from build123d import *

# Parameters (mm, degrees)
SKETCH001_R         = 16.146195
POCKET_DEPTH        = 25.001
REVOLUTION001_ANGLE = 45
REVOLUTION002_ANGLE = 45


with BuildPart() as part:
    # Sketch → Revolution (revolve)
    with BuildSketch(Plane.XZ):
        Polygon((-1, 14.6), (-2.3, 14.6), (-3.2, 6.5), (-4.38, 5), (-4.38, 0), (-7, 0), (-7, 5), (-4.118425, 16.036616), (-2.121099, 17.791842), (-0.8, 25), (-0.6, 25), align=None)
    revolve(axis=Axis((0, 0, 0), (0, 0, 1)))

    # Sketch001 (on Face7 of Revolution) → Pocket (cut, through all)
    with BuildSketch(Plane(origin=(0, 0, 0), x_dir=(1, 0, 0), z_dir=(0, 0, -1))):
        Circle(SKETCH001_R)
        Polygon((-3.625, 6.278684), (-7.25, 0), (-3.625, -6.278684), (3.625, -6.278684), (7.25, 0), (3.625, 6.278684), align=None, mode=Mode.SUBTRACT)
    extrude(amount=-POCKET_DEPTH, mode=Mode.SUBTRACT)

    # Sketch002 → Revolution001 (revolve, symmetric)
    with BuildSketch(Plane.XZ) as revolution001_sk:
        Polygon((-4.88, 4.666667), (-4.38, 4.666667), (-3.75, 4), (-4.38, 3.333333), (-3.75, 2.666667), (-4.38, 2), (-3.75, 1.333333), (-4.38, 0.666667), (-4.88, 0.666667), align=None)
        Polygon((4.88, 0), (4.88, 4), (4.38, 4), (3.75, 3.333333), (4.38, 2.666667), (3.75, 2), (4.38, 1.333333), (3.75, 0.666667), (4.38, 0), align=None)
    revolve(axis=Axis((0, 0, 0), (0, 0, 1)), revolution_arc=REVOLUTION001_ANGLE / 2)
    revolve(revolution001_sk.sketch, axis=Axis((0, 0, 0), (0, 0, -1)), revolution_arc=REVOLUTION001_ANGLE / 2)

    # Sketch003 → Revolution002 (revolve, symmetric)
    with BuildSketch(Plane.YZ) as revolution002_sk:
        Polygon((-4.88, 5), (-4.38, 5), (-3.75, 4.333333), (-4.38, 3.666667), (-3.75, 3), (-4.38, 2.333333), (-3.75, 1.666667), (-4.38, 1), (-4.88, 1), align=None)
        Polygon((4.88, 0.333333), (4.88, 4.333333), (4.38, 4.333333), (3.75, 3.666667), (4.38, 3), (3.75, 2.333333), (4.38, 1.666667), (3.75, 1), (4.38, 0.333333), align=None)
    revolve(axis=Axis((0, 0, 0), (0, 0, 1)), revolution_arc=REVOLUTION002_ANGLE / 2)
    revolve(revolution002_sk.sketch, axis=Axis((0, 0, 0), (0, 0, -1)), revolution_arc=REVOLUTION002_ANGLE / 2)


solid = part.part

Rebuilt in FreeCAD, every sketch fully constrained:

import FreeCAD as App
import Part
import Sketcher
from FreeCAD import Vector
Q = App.Units.Quantity


def add_polygon(sketch, points):
    """Adds a closed chain of lines whose ends are joined by coincident constraints."""
    first, n = sketch.GeometryCount, len(points)
    for a, b in zip(points, points[1:] + points[:1]):
        sketch.addGeometry(Part.LineSegment(App.Vector(*a, 0), App.Vector(*b, 0)), False)
    for i in range(n):
        sketch.addConstraint(Sketcher.Constraint("Coincident", first + i, 2, first + (i + 1) % n, 1))

doc = App.newDocument("Part")
params = doc.addObject("Spreadsheet::Sheet", "Params")
for row, (alias, value) in enumerate([
    ("sketch1_height", "5 mm"),
    ("sketch1_width", "1.3 mm"),
    ("sketch1_width2", "0.2 mm"),
    ("sketch1_width3", "2.62 mm"),
    ("revolution_angle", "360 deg"),
    ("sketch2_width", "7.25 mm"),
    ("sketch2_length", "7.25 mm"),
    ("sketch3_height", "4 mm"),
    ("sketch3_width", "0.5 mm"),
    ("revolution2_angle", "22.5 deg"),
    ("sketch4_height", "4 mm"),
    ("sketch4_width", "0.5 mm"),
    ("revolution3_angle", "22.5 deg"),
    ("sketch5_height", "4 mm"),
    ("sketch5_width", "0.5 mm"),
    ("revolution4_angle", "22.5 deg"),
    ("sketch6_height", "4 mm"),
    ("sketch6_width", "0.5 mm"),
    ("revolution5_angle", "22.5 deg"),
], start=1):
    params.set(f"A{row}", alias)
    params.set(f"B{row}", "=" + value)
    params.setAlias(f"B{row}", alias)

body = doc.addObject("PartDesign::Body", "Body")

sketch1 = body.newObject("Sketcher::SketchObject", "Sketch")
sketch1.AttachmentSupport = (doc.getObject("XZ_Plane"), [""])
sketch1.MapMode = "FlatFace"
add_polygon(sketch1, [(-2.3, 14.6), (-1, 14.6), (-0.6, 25), (-0.8, 25), (-2.121099, 17.791842), (-4.118425, 16.036616), (-7, 5), (-7, 0), (-4.38, 0), (-4.38, 5), (-3.2, 6.5)])
sketch1.addConstraint(Sketcher.Constraint("Horizontal", 0))
sketch1.addConstraint(Sketcher.Constraint("Horizontal", 2))
sketch1.addConstraint(Sketcher.Constraint("Vertical", 6))
sketch1.addConstraint(Sketcher.Constraint("Horizontal", 7))
sketch1.addConstraint(Sketcher.Constraint("Vertical", 8))
sketch1.addConstraint(Sketcher.Constraint("PointOnObject", 6, 2, -1))
sketch1.addConstraint(Sketcher.Constraint("Horizontal", 5, 2, 8, 2))
sketch1.addConstraint(Sketcher.Constraint("DistanceY", 6, 2, 6, 1, Q("5 mm")))
sketch1.addConstraint(Sketcher.Constraint("DistanceX", 0, 1, 0, 2, Q("1.3 mm")))
sketch1.addConstraint(Sketcher.Constraint("DistanceX", 2, 2, 2, 1, Q("0.2 mm")))
sketch1.addConstraint(Sketcher.Constraint("DistanceX", 0, 2, -1, 1, Q("1 mm")))
sketch1.addConstraint(Sketcher.Constraint("DistanceY", -1, 1, 1, 2, Q("25 mm")))
sketch1.addConstraint(Sketcher.Constraint("DistanceX", 5, 2, -1, 1, Q("7 mm")))
sketch1.addConstraint(Sketcher.Constraint("DistanceX", 7, 1, 7, 2, Q("2.62 mm")))
sketch1.addConstraint(Sketcher.Constraint("DistanceY", -1, 1, 0, 2, Q("14.6 mm")))
sketch1.addConstraint(Sketcher.Constraint("DistanceX", 1, 2, -1, 1, Q("0.6 mm")))
sketch1.addConstraint(Sketcher.Constraint("DistanceX", 9, 2, -1, 1, Q("3.2 mm")))
sketch1.addConstraint(Sketcher.Constraint("DistanceY", -1, 1, 9, 2, Q("6.5 mm")))
sketch1.addConstraint(Sketcher.Constraint("DistanceX", 3, 2, -1, 1, Q("2.121099 mm")))
sketch1.addConstraint(Sketcher.Constraint("Distance", 4, Q("2.658972 mm")))
sketch1.addConstraint(Sketcher.Constraint("DistanceY", -1, 1, 3, 2, Q("17.791842 mm")))
sketch1.addConstraint(Sketcher.Constraint("Distance", 5, Q("11.406593 mm")))
sketch1.setExpression("Constraints[18]", "Params.sketch1_height")
sketch1.setExpression("Constraints[19]", "Params.sketch1_width")
sketch1.setExpression("Constraints[20]", "Params.sketch1_width2")
sketch1.setExpression("Constraints[24]", "Params.sketch1_width3")
revolution = body.newObject("PartDesign::Revolution", "Revolution")
revolution.Profile = sketch1
revolution.ReferenceAxis = (sketch1, ["V_Axis"])
revolution.setExpression("Angle", "Params.revolution_angle")

sketch2 = body.newObject("Sketcher::SketchObject", "Sketch001")
sketch2.AttachmentSupport = (doc.getObject("XY_Plane"), [""])
sketch2.MapMode = "FlatFace"
sketch2.addGeometry(Part.Circle(Vector(0, 0, 0), Vector(0, 0, 1), 16.146195), False)
add_polygon(sketch2, [(-7.25, 0), (-3.625, -6.278684), (3.625, -6.278684), (7.25, 0), (3.625, 6.278684), (-3.625, 6.278684)])
sketch2.addConstraint(Sketcher.Constraint("Horizontal", 2))
sketch2.addConstraint(Sketcher.Constraint("Horizontal", 5))
sketch2.addConstraint(Sketcher.Constraint("Coincident", 0, 3, -1, 1))
sketch2.addConstraint(Sketcher.Constraint("Symmetric", 1, 2, 4, 2, -1, 1))
sketch2.addConstraint(Sketcher.Constraint("Symmetric", 3, 2, 6, 2, -1, 1))
sketch2.addConstraint(Sketcher.Constraint("PointOnObject", 3, 2, -1))
sketch2.addConstraint(Sketcher.Constraint("Parallel", 3, 6))
sketch2.addConstraint(Sketcher.Constraint("Vertical", 2, 2, 4, 2))
sketch2.addConstraint(Sketcher.Constraint("Angle", 1, Q("-59.999999 deg")))
sketch2.addConstraint(Sketcher.Constraint("DistanceX", 2, 1, 2, 2, Q("7.25 mm")))
sketch2.addConstraint(Sketcher.Constraint("Distance", 1, Q("7.25 mm")))
sketch2.addConstraint(Sketcher.Constraint("Diameter", 0, Q("32.29239 mm")))
sketch2.setExpression("Constraints[15]", "Params.sketch2_width")
sketch2.setExpression("Constraints[16]", "Params.sketch2_length")
pocket1 = body.newObject("PartDesign::Pocket", "Pocket")
pocket1.Profile = sketch2
pocket1.Type = "ThroughAll"
pocket1.Reversed = True

sketch3 = body.newObject("Sketcher::SketchObject", "Sketch002")
sketch3.AttachmentSupport = (doc.getObject("XZ_Plane"), [""])
sketch3.MapMode = "FlatFace"
add_polygon(sketch3, [(-4.38, 4.666667), (-4.88, 4.666667), (-4.88, 0.666667), (-4.38, 0.666667), (-3.75, 1.333333), (-4.38, 2), (-3.75, 2.666667), (-4.38, 3.333333), (-3.75, 4)])
add_polygon(sketch3, [(4.88, 0), (4.88, 4), (4.38, 4), (3.75, 3.333333), (4.38, 2.666667), (3.75, 2), (4.38, 1.333333), (3.75, 0.666667), (4.38, 0)])
sketch3.addConstraint(Sketcher.Constraint("Horizontal", 0))
sketch3.addConstraint(Sketcher.Constraint("Vertical", 1))
sketch3.addConstraint(Sketcher.Constraint("Horizontal", 2))
sketch3.addConstraint(Sketcher.Constraint("Vertical", 9))
sketch3.addConstraint(Sketcher.Constraint("Horizontal", 10))
sketch3.addConstraint(Sketcher.Constraint("Horizontal", 17))
sketch3.addConstraint(Sketcher.Constraint("PointOnObject", 16, 2, -1))
sketch3.addConstraint(Sketcher.Constraint("Parallel", 3, 5))
sketch3.addConstraint(Sketcher.Constraint("Parallel", 4, 6))
sketch3.addConstraint(Sketcher.Constraint("Parallel", 5, 7))
sketch3.addConstraint(Sketcher.Constraint("Parallel", 6, 8))
sketch3.addConstraint(Sketcher.Constraint("Parallel", 7, 11))
sketch3.addConstraint(Sketcher.Constraint("Parallel", 8, 12))
sketch3.addConstraint(Sketcher.Constraint("Parallel", 11, 13))
sketch3.addConstraint(Sketcher.Constraint("Parallel", 12, 14))
sketch3.addConstraint(Sketcher.Constraint("Parallel", 13, 15))
sketch3.addConstraint(Sketcher.Constraint("Parallel", 14, 16))
sketch3.addConstraint(Sketcher.Constraint("Horizontal", 7, 2, 9, 2))
sketch3.addConstraint(Sketcher.Constraint("Horizontal", 6, 2, 11, 2))
sketch3.addConstraint(Sketcher.Constraint("Horizontal", 5, 2, 12, 2))
sketch3.addConstraint(Sketcher.Constraint("Horizontal", 4, 2, 13, 2))
sketch3.addConstraint(Sketcher.Constraint("Horizontal", 3, 2, 14, 2))
sketch3.addConstraint(Sketcher.Constraint("Horizontal", 2, 2, 15, 2))
sketch3.addConstraint(Sketcher.Constraint("Vertical", 2, 2, 4, 2))
sketch3.addConstraint(Sketcher.Constraint("Vertical", 3, 2, 5, 2))
sketch3.addConstraint(Sketcher.Constraint("Vertical", 4, 2, 6, 2))
sketch3.addConstraint(Sketcher.Constraint("Vertical", 5, 2, 7, 2))
sketch3.addConstraint(Sketcher.Constraint("Vertical", 6, 2, 8, 2))
sketch3.addConstraint(Sketcher.Constraint("Vertical", 14, 2, 16, 2))
sketch3.addConstraint(Sketcher.Constraint("Equal", 2, 10))
sketch3.addConstraint(Sketcher.Constraint("Equal", 3, 4))
sketch3.addConstraint(Sketcher.Constraint("DistanceY", 1, 2, 1, 1, Q("4 mm")))
sketch3.addConstraint(Sketcher.Constraint("DistanceX", 0, 2, 0, 1, Q("0.5 mm")))
sketch3.addConstraint(Sketcher.Constraint("DistanceX", 5, 2, 11, 2, Q("7.5 mm")))
sketch3.addConstraint(Sketcher.Constraint("DistanceX", 0, 2, -1, 1, Q("4.88 mm")))
sketch3.addConstraint(Sketcher.Constraint("DistanceX", 3, 2, -1, 1, Q("3.75 mm")))
sketch3.setExpression("Constraints[49]", "Params.sketch3_height")
sketch3.setExpression("Constraints[50]", "Params.sketch3_width")
revolution2 = body.newObject("PartDesign::Revolution", "Revolution001")
revolution2.Profile = sketch3
revolution2.ReferenceAxis = (sketch3, ["V_Axis"])
revolution2.setExpression("Angle", "Params.revolution2_angle")

sketch4 = body.newObject("Sketcher::SketchObject", "Sketch003")
sketch4.AttachmentSupport = (doc.getObject("XZ_Plane"), [""])
sketch4.MapMode = "FlatFace"
add_polygon(sketch4, [(-4.38, 4.666667), (-4.88, 4.666667), (-4.88, 0.666667), (-4.38, 0.666667), (-3.75, 1.333333), (-4.38, 2), (-3.75, 2.666667), (-4.38, 3.333333), (-3.75, 4)])
add_polygon(sketch4, [(4.88, 0), (4.88, 4), (4.38, 4), (3.75, 3.333333), (4.38, 2.666667), (3.75, 2), (4.38, 1.333333), (3.75, 0.666667), (4.38, 0)])
sketch4.addConstraint(Sketcher.Constraint("Horizontal", 0))
sketch4.addConstraint(Sketcher.Constraint("Vertical", 1))
sketch4.addConstraint(Sketcher.Constraint("Horizontal", 2))
sketch4.addConstraint(Sketcher.Constraint("Vertical", 9))
sketch4.addConstraint(Sketcher.Constraint("Horizontal", 10))
sketch4.addConstraint(Sketcher.Constraint("Horizontal", 17))
sketch4.addConstraint(Sketcher.Constraint("PointOnObject", 16, 2, -1))
sketch4.addConstraint(Sketcher.Constraint("Parallel", 3, 5))
sketch4.addConstraint(Sketcher.Constraint("Parallel", 4, 6))
sketch4.addConstraint(Sketcher.Constraint("Parallel", 5, 7))
sketch4.addConstraint(Sketcher.Constraint("Parallel", 6, 8))
sketch4.addConstraint(Sketcher.Constraint("Parallel", 7, 11))
sketch4.addConstraint(Sketcher.Constraint("Parallel", 8, 12))
sketch4.addConstraint(Sketcher.Constraint("Parallel", 11, 13))
sketch4.addConstraint(Sketcher.Constraint("Parallel", 12, 14))
sketch4.addConstraint(Sketcher.Constraint("Parallel", 13, 15))
sketch4.addConstraint(Sketcher.Constraint("Parallel", 14, 16))
sketch4.addConstraint(Sketcher.Constraint("Horizontal", 7, 2, 9, 2))
sketch4.addConstraint(Sketcher.Constraint("Horizontal", 6, 2, 11, 2))
sketch4.addConstraint(Sketcher.Constraint("Horizontal", 5, 2, 12, 2))
sketch4.addConstraint(Sketcher.Constraint("Horizontal", 4, 2, 13, 2))
sketch4.addConstraint(Sketcher.Constraint("Horizontal", 3, 2, 14, 2))
sketch4.addConstraint(Sketcher.Constraint("Horizontal", 2, 2, 15, 2))
sketch4.addConstraint(Sketcher.Constraint("Vertical", 2, 2, 4, 2))
sketch4.addConstraint(Sketcher.Constraint("Vertical", 3, 2, 5, 2))
sketch4.addConstraint(Sketcher.Constraint("Vertical", 4, 2, 6, 2))
sketch4.addConstraint(Sketcher.Constraint("Vertical", 5, 2, 7, 2))
sketch4.addConstraint(Sketcher.Constraint("Vertical", 6, 2, 8, 2))
sketch4.addConstraint(Sketcher.Constraint("Vertical", 14, 2, 16, 2))
sketch4.addConstraint(Sketcher.Constraint("Equal", 2, 10))
sketch4.addConstraint(Sketcher.Constraint("Equal", 3, 4))
sketch4.addConstraint(Sketcher.Constraint("DistanceY", 1, 2, 1, 1, Q("4 mm")))
sketch4.addConstraint(Sketcher.Constraint("DistanceX", 0, 2, 0, 1, Q("0.5 mm")))
sketch4.addConstraint(Sketcher.Constraint("DistanceX", 5, 2, 11, 2, Q("7.5 mm")))
sketch4.addConstraint(Sketcher.Constraint("DistanceX", 0, 2, -1, 1, Q("4.88 mm")))
sketch4.addConstraint(Sketcher.Constraint("DistanceX", 3, 2, -1, 1, Q("3.75 mm")))
sketch4.setExpression("Constraints[49]", "Params.sketch4_height")
sketch4.setExpression("Constraints[50]", "Params.sketch4_width")
revolution3 = body.newObject("PartDesign::Revolution", "Revolution002")
revolution3.Profile = sketch4
revolution3.ReferenceAxis = (sketch4, ["V_Axis"])
revolution3.setExpression("Angle", "Params.revolution3_angle")
revolution3.Reversed = True

sketch5 = body.newObject("Sketcher::SketchObject", "Sketch004")
sketch5.AttachmentSupport = (doc.getObject("YZ_Plane"), [""])
sketch5.MapMode = "FlatFace"
add_polygon(sketch5, [(-4.38, 5), (-4.88, 5), (-4.88, 1), (-4.38, 1), (-3.75, 1.666667), (-4.38, 2.333333), (-3.75, 3), (-4.38, 3.666667), (-3.75, 4.333333)])
add_polygon(sketch5, [(4.88, 0.333333), (4.88, 4.333333), (4.38, 4.333333), (3.75, 3.666667), (4.38, 3), (3.75, 2.333333), (4.38, 1.666667), (3.75, 1), (4.38, 0.333333)])
sketch5.addConstraint(Sketcher.Constraint("Horizontal", 0))
sketch5.addConstraint(Sketcher.Constraint("Vertical", 1))
sketch5.addConstraint(Sketcher.Constraint("Horizontal", 2))
sketch5.addConstraint(Sketcher.Constraint("Vertical", 9))
sketch5.addConstraint(Sketcher.Constraint("Horizontal", 10))
sketch5.addConstraint(Sketcher.Constraint("Horizontal", 17))
sketch5.addConstraint(Sketcher.Constraint("Parallel", 3, 5))
sketch5.addConstraint(Sketcher.Constraint("Parallel", 4, 6))
sketch5.addConstraint(Sketcher.Constraint("Parallel", 5, 7))
sketch5.addConstraint(Sketcher.Constraint("Parallel", 6, 8))
sketch5.addConstraint(Sketcher.Constraint("Parallel", 7, 11))
sketch5.addConstraint(Sketcher.Constraint("Parallel", 8, 12))
sketch5.addConstraint(Sketcher.Constraint("Parallel", 11, 13))
sketch5.addConstraint(Sketcher.Constraint("Parallel", 12, 14))
sketch5.addConstraint(Sketcher.Constraint("Parallel", 13, 15))
sketch5.addConstraint(Sketcher.Constraint("Parallel", 14, 16))
sketch5.addConstraint(Sketcher.Constraint("Horizontal", 7, 2, 9, 2))
sketch5.addConstraint(Sketcher.Constraint("Horizontal", 6, 2, 11, 2))
sketch5.addConstraint(Sketcher.Constraint("Horizontal", 5, 2, 12, 2))
sketch5.addConstraint(Sketcher.Constraint("Horizontal", 4, 2, 13, 2))
sketch5.addConstraint(Sketcher.Constraint("Horizontal", 3, 2, 14, 2))
sketch5.addConstraint(Sketcher.Constraint("Horizontal", 2, 2, 15, 2))
sketch5.addConstraint(Sketcher.Constraint("Vertical", 2, 2, 4, 2))
sketch5.addConstraint(Sketcher.Constraint("Vertical", 3, 2, 5, 2))
sketch5.addConstraint(Sketcher.Constraint("Vertical", 4, 2, 6, 2))
sketch5.addConstraint(Sketcher.Constraint("Vertical", 5, 2, 7, 2))
sketch5.addConstraint(Sketcher.Constraint("Vertical", 6, 2, 8, 2))
sketch5.addConstraint(Sketcher.Constraint("Vertical", 14, 2, 16, 2))
sketch5.addConstraint(Sketcher.Constraint("Equal", 2, 10))
sketch5.addConstraint(Sketcher.Constraint("Equal", 3, 4))
sketch5.addConstraint(Sketcher.Constraint("DistanceY", 1, 2, 1, 1, Q("4 mm")))
sketch5.addConstraint(Sketcher.Constraint("DistanceX", 0, 2, 0, 1, Q("0.5 mm")))
sketch5.addConstraint(Sketcher.Constraint("DistanceY", -1, 1, 0, 2, Q("5 mm")))
sketch5.addConstraint(Sketcher.Constraint("DistanceX", 7, 2, 11, 2, Q("7.5 mm")))
sketch5.addConstraint(Sketcher.Constraint("DistanceX", 0, 2, -1, 1, Q("4.88 mm")))
sketch5.addConstraint(Sketcher.Constraint("DistanceX", 3, 2, -1, 1, Q("3.75 mm")))
sketch5.setExpression("Constraints[48]", "Params.sketch5_height")
sketch5.setExpression("Constraints[49]", "Params.sketch5_width")
revolution4 = body.newObject("PartDesign::Revolution", "Revolution003")
revolution4.Profile = sketch5
revolution4.ReferenceAxis = (sketch5, ["V_Axis"])
revolution4.setExpression("Angle", "Params.revolution4_angle")

sketch6 = body.newObject("Sketcher::SketchObject", "Sketch005")
sketch6.AttachmentSupport = (doc.getObject("YZ_Plane"), [""])
sketch6.MapMode = "FlatFace"
add_polygon(sketch6, [(-4.38, 5), (-4.88, 5), (-4.88, 1), (-4.38, 1), (-3.75, 1.666667), (-4.38, 2.333333), (-3.75, 3), (-4.38, 3.666667), (-3.75, 4.333333)])
add_polygon(sketch6, [(4.88, 0.333333), (4.88, 4.333333), (4.38, 4.333333), (3.75, 3.666667), (4.38, 3), (3.75, 2.333333), (4.38, 1.666667), (3.75, 1), (4.38, 0.333333)])
sketch6.addConstraint(Sketcher.Constraint("Horizontal", 0))
sketch6.addConstraint(Sketcher.Constraint("Vertical", 1))
sketch6.addConstraint(Sketcher.Constraint("Horizontal", 2))
sketch6.addConstraint(Sketcher.Constraint("Vertical", 9))
sketch6.addConstraint(Sketcher.Constraint("Horizontal", 10))
sketch6.addConstraint(Sketcher.Constraint("Horizontal", 17))
sketch6.addConstraint(Sketcher.Constraint("Parallel", 3, 5))
sketch6.addConstraint(Sketcher.Constraint("Parallel", 4, 6))
sketch6.addConstraint(Sketcher.Constraint("Parallel", 5, 7))
sketch6.addConstraint(Sketcher.Constraint("Parallel", 6, 8))
sketch6.addConstraint(Sketcher.Constraint("Parallel", 7, 11))
sketch6.addConstraint(Sketcher.Constraint("Parallel", 8, 12))
sketch6.addConstraint(Sketcher.Constraint("Parallel", 11, 13))
sketch6.addConstraint(Sketcher.Constraint("Parallel", 12, 14))
sketch6.addConstraint(Sketcher.Constraint("Parallel", 13, 15))
sketch6.addConstraint(Sketcher.Constraint("Parallel", 14, 16))
sketch6.addConstraint(Sketcher.Constraint("Horizontal", 7, 2, 9, 2))
sketch6.addConstraint(Sketcher.Constraint("Horizontal", 6, 2, 11, 2))
sketch6.addConstraint(Sketcher.Constraint("Horizontal", 5, 2, 12, 2))
sketch6.addConstraint(Sketcher.Constraint("Horizontal", 4, 2, 13, 2))
sketch6.addConstraint(Sketcher.Constraint("Horizontal", 3, 2, 14, 2))
sketch6.addConstraint(Sketcher.Constraint("Horizontal", 2, 2, 15, 2))
sketch6.addConstraint(Sketcher.Constraint("Vertical", 2, 2, 4, 2))
sketch6.addConstraint(Sketcher.Constraint("Vertical", 3, 2, 5, 2))
sketch6.addConstraint(Sketcher.Constraint("Vertical", 4, 2, 6, 2))
sketch6.addConstraint(Sketcher.Constraint("Vertical", 5, 2, 7, 2))
sketch6.addConstraint(Sketcher.Constraint("Vertical", 6, 2, 8, 2))
sketch6.addConstraint(Sketcher.Constraint("Vertical", 14, 2, 16, 2))
sketch6.addConstraint(Sketcher.Constraint("Equal", 2, 10))
sketch6.addConstraint(Sketcher.Constraint("Equal", 3, 4))
sketch6.addConstraint(Sketcher.Constraint("DistanceY", 1, 2, 1, 1, Q("4 mm")))
sketch6.addConstraint(Sketcher.Constraint("DistanceX", 0, 2, 0, 1, Q("0.5 mm")))
sketch6.addConstraint(Sketcher.Constraint("DistanceY", -1, 1, 0, 2, Q("5 mm")))
sketch6.addConstraint(Sketcher.Constraint("DistanceX", 7, 2, 11, 2, Q("7.5 mm")))
sketch6.addConstraint(Sketcher.Constraint("DistanceX", 0, 2, -1, 1, Q("4.88 mm")))
sketch6.addConstraint(Sketcher.Constraint("DistanceX", 3, 2, -1, 1, Q("3.75 mm")))
sketch6.setExpression("Constraints[48]", "Params.sketch6_height")
sketch6.setExpression("Constraints[49]", "Params.sketch6_width")
revolution5 = body.newObject("PartDesign::Revolution", "Revolution004")
revolution5.Profile = sketch6
revolution5.ReferenceAxis = (sketch6, ["V_Axis"])
revolution5.setExpression("Angle", "Params.revolution5_angle")
revolution5.Reversed = True

doc.recompute()
